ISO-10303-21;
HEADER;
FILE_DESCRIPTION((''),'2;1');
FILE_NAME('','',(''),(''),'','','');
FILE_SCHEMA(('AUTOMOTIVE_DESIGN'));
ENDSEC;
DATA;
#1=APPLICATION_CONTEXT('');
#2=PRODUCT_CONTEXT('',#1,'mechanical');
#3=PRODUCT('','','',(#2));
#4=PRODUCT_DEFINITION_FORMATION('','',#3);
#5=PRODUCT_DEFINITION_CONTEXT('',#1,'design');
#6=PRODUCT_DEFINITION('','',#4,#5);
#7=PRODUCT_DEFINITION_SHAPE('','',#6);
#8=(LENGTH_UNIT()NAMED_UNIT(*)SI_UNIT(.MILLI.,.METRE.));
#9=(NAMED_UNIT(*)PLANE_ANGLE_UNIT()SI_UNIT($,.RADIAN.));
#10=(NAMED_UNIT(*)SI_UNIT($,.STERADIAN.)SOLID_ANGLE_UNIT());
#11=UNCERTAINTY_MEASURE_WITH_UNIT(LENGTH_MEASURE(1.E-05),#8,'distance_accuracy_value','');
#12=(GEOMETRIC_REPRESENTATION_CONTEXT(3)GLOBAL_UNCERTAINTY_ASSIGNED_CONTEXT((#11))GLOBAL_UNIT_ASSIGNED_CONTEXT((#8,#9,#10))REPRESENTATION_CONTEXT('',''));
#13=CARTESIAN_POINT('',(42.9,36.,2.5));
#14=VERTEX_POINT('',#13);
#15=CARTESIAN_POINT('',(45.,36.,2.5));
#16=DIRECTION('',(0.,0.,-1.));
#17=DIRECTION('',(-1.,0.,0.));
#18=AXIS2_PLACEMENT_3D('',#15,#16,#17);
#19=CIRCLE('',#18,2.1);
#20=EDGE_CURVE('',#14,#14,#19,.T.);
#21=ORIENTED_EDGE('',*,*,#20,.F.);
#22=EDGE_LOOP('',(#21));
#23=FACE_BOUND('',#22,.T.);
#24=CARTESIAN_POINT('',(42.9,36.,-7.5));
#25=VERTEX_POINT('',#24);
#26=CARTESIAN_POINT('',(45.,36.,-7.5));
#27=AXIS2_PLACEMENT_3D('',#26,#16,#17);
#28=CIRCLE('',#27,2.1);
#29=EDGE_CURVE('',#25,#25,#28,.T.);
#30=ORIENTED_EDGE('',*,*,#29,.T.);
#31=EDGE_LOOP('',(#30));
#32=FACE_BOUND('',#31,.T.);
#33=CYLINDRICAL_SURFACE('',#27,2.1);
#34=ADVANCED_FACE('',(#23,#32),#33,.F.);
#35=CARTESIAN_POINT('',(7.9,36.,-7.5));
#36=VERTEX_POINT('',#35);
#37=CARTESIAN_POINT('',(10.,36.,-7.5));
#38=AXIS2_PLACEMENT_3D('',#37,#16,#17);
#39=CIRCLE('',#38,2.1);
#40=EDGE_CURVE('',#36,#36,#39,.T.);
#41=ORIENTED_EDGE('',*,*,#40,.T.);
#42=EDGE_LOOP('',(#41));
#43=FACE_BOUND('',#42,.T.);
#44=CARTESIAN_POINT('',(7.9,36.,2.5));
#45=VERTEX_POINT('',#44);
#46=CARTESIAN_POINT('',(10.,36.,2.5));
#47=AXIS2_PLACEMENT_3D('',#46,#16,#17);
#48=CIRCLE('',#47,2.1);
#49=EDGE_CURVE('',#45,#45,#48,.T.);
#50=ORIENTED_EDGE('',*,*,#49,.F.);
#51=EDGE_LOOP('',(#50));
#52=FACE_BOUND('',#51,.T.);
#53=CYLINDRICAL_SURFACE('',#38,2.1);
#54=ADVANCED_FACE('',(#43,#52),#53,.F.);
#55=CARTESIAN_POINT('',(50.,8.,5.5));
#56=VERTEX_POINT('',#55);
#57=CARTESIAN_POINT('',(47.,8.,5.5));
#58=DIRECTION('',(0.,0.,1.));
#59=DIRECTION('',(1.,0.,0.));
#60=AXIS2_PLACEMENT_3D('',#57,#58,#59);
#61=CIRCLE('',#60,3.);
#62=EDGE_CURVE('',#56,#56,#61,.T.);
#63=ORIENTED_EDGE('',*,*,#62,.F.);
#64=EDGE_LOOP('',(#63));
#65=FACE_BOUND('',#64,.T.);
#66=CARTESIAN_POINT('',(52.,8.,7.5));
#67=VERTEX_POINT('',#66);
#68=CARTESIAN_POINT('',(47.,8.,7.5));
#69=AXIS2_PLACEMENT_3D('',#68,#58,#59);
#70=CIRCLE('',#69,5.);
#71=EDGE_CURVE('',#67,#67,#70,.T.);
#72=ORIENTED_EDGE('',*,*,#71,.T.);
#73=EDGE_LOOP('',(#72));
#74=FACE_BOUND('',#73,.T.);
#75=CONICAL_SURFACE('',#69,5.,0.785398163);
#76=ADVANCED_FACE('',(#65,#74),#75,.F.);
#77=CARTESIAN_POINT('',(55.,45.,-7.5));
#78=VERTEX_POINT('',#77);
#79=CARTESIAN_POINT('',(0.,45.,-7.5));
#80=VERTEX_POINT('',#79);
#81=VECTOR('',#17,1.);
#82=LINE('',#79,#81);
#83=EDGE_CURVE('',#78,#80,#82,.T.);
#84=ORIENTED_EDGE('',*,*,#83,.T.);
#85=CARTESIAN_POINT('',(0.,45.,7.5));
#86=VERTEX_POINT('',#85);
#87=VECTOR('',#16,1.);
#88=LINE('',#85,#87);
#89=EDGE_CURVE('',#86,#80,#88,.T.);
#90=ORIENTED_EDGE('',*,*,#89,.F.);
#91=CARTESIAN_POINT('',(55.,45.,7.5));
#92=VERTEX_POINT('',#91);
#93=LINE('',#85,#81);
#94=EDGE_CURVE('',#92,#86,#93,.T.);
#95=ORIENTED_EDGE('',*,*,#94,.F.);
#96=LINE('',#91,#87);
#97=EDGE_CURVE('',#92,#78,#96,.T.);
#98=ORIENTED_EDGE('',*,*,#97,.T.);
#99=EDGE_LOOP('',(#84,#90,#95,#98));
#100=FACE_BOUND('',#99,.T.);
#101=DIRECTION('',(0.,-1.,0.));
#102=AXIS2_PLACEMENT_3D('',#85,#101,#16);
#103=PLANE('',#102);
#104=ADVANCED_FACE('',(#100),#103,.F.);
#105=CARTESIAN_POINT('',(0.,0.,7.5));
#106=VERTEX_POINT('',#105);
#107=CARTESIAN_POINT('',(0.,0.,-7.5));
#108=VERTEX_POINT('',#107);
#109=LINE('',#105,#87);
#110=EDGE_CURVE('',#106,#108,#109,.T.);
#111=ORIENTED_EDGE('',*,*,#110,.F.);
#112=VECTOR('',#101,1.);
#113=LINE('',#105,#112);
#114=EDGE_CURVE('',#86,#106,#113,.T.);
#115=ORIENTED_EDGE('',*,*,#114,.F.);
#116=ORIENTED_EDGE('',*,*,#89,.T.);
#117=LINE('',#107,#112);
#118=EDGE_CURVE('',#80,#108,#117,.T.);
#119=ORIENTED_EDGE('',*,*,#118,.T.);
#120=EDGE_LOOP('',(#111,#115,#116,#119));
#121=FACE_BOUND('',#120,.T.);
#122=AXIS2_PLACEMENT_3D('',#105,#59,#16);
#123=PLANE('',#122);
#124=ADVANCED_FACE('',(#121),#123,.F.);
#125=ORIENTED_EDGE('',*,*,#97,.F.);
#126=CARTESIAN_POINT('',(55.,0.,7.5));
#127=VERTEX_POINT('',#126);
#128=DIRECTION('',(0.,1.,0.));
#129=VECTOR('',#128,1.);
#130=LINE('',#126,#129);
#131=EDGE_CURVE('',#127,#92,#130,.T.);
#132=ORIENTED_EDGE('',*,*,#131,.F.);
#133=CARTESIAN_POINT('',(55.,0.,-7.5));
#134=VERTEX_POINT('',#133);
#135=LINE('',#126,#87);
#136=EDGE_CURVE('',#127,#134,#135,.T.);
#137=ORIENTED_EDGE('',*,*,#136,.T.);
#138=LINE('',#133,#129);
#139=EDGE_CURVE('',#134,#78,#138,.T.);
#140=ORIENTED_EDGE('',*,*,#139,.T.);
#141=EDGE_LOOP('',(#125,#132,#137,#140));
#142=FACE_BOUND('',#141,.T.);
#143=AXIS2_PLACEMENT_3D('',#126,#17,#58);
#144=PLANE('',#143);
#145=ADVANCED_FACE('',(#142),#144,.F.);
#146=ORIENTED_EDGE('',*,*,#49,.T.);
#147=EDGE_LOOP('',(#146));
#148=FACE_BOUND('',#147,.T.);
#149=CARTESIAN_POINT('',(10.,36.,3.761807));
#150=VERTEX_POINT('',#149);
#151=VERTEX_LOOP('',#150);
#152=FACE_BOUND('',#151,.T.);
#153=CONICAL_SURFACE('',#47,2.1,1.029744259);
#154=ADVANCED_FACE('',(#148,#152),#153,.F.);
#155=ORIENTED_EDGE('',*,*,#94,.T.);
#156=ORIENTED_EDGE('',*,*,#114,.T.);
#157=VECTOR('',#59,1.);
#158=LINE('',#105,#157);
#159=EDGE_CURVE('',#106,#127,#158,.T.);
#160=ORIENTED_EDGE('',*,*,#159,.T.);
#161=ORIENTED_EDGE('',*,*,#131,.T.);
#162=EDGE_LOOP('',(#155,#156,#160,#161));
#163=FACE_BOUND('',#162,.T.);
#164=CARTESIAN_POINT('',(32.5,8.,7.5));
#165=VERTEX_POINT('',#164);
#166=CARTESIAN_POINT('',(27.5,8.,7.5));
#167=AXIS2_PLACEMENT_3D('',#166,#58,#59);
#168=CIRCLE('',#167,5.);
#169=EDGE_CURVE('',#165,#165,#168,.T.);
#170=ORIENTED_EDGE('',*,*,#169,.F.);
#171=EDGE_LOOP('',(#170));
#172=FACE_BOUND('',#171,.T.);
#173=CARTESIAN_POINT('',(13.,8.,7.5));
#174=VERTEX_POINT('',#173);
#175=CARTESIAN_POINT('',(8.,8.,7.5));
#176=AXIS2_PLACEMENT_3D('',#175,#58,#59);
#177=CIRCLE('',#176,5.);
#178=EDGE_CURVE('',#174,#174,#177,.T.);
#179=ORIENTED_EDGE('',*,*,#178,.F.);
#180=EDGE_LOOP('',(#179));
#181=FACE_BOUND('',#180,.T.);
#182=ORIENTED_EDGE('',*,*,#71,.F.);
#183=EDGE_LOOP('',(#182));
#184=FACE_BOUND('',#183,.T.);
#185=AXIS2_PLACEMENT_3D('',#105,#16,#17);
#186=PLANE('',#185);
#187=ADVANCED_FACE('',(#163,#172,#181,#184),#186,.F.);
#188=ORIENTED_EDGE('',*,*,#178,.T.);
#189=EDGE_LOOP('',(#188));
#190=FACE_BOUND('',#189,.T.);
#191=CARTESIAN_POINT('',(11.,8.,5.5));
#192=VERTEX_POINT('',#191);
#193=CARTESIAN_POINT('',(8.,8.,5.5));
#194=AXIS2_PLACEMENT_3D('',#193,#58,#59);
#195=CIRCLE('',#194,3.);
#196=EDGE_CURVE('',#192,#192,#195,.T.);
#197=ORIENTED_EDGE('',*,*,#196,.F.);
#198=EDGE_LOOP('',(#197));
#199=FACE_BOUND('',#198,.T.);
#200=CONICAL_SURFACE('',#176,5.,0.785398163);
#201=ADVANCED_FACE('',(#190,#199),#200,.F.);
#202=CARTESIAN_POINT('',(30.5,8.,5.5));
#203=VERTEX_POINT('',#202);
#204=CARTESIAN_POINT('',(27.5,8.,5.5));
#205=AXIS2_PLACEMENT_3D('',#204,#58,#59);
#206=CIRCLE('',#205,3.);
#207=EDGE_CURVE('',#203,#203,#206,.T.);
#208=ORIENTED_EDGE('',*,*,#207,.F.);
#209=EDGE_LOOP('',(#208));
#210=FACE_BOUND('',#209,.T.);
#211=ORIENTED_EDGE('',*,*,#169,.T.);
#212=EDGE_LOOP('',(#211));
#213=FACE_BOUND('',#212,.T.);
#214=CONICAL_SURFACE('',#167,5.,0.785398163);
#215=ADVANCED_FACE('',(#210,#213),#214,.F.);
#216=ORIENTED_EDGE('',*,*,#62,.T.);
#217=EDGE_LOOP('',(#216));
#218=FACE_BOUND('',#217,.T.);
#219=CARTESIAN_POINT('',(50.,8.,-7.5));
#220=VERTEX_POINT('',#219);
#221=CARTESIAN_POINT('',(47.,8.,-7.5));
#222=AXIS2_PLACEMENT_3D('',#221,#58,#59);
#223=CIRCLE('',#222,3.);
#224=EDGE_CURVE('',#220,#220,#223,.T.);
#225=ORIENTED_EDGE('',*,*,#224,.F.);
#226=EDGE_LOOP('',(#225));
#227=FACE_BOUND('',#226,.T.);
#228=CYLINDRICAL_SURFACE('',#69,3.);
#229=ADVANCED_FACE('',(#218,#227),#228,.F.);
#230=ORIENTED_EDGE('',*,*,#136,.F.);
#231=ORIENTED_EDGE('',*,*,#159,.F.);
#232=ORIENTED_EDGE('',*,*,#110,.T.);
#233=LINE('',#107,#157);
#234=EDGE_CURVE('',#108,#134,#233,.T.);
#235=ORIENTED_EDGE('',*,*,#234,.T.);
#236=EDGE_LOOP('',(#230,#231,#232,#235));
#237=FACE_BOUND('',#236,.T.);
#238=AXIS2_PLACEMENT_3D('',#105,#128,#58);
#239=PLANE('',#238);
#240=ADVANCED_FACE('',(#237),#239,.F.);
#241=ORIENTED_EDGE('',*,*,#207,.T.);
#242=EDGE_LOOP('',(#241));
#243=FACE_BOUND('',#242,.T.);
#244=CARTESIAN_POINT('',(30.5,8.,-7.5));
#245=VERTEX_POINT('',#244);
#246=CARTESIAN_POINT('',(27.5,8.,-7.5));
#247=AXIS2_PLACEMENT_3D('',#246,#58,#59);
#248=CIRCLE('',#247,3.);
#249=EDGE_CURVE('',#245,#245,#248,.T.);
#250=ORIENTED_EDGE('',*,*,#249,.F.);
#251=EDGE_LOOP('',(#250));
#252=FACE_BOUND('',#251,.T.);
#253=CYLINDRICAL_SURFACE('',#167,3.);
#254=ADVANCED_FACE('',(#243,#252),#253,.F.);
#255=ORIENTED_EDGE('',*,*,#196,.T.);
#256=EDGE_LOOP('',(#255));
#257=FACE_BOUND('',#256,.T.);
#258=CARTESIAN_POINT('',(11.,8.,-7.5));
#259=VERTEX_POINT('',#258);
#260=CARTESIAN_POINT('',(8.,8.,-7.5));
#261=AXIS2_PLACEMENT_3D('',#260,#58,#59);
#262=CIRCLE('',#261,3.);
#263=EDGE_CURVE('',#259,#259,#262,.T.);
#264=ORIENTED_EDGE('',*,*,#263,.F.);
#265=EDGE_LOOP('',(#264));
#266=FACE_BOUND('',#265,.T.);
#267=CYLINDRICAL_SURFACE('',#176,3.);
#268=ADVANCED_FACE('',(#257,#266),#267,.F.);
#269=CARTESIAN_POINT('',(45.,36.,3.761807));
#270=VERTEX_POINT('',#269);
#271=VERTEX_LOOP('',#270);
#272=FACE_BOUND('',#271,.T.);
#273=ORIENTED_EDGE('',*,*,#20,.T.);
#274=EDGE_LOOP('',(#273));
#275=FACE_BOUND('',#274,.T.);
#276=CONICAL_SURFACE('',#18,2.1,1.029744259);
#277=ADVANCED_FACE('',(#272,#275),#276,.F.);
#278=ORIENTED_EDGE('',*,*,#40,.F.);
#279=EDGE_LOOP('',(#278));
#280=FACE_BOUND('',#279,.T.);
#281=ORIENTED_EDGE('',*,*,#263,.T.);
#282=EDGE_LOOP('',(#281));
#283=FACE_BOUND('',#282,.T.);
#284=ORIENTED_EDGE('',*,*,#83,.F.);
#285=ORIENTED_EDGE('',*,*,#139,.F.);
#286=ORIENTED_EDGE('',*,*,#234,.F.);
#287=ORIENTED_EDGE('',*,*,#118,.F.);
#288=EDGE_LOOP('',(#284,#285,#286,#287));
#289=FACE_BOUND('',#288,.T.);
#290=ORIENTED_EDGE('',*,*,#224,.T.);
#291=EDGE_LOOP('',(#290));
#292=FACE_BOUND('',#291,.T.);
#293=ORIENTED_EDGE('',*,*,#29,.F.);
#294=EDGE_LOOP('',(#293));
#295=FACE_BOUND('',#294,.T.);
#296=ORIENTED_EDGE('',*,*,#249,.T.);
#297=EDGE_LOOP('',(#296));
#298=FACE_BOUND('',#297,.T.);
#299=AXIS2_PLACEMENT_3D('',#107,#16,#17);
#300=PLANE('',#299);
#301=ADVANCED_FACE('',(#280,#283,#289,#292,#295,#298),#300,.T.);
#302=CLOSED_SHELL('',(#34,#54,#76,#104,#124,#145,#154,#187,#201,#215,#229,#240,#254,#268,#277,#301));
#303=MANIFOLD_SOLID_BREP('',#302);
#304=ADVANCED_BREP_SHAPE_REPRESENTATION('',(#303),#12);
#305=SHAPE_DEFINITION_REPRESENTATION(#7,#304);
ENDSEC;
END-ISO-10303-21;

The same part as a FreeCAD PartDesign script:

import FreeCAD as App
import Part
import Sketcher

V = App.Vector
Q = App.Units.Quantity


def add_polygon(sketch, points):
    """Adds a closed chain of lines whose ends are joined by coincident constraints."""
    first, n = sketch.GeometryCount, len(points)
    for a, b in zip(points, points[1:] + points[:1]):
        sketch.addGeometry(Part.LineSegment(App.Vector(*a, 0), App.Vector(*b, 0)), False)
    for i in range(n):
        sketch.addConstraint(Sketcher.Constraint("Coincident", first + i, 2, first + (i + 1) % n, 1))

doc = App.newDocument("Part")
body = doc.addObject("PartDesign::Body", "Body")

# Sketch on XY plane
sketch1 = body.newObject("Sketcher::SketchObject", "Sketch")
sketch1.AttachmentSupport = (doc.getObject("XY_Plane"), [""])
sketch1.MapMode = "FlatFace"
add_polygon(sketch1, [(0, 45), (0, 0), (55, 0), (55, 45)])  # lines 0-3
sketch1.addConstraint(Sketcher.Constraint("Vertical", 0))
sketch1.addConstraint(Sketcher.Constraint("Horizontal", 1))
sketch1.addConstraint(Sketcher.Constraint("Vertical", 2))
sketch1.addConstraint(Sketcher.Constraint("Horizontal", 3))
sketch1.addConstraint(Sketcher.Constraint("Coincident", 0, 2, -1, 1))
sketch1.addConstraint(Sketcher.Constraint("DistanceX", 1, 1, 1, 2, Q("55 mm")))
sketch1.addConstraint(Sketcher.Constraint("DistanceY", 0, 2, 0, 1, Q("45 mm")))
pad1 = body.newObject("PartDesign::Pad", "Pad")
pad1.Profile = sketch1
pad1.Length = 15
pad1.Midplane = True

# Sketch on XY plane
sketch2 = body.newObject("Sketcher::SketchObject", "Sketch001")
sketch2.AttachmentSupport = (doc.getObject("XY_Plane"), [""])
sketch2.MapMode = "FlatFace"
sketch2.AttachmentOffset = App.Placement(V(0, 0, 7.5), App.Rotation())
sketch2.addGeometry(Part.Circle(V(8, 8, 0), V(0, 0, 1), 3), False)
sketch2.addGeometry(Part.Circle(V(27.5, 8, 0), V(0, 0, 1), 3), False)
sketch2.addGeometry(Part.Circle(V(47, 8, 0), V(0, 0, 1), 3), False)
sketch2.addConstraint(Sketcher.Constraint("Equal", 0, 1))
sketch2.addConstraint(Sketcher.Constraint("Equal", 1, 2))
sketch2.addConstraint(Sketcher.Constraint("Horizontal", 0, 3, 1, 3))
sketch2.addConstraint(Sketcher.Constraint("Horizontal", 1, 3, 2, 3))
sketch2.addConstraint(Sketcher.Constraint("Diameter", 0, Q("6 mm")))
sketch2.addConstraint(Sketcher.Constraint("DistanceX", -1, 1, 0, 3, Q("8 mm")))
sketch2.addConstraint(Sketcher.Constraint("DistanceY", -1, 1, 0, 3, Q("8 mm")))
sketch2.addConstraint(Sketcher.Constraint("DistanceX", -1, 1, 2, 3, Q("47 mm")))
sketch2.addConstraint(Sketcher.Constraint("DistanceX", -1, 1, 1, 3, Q("27.5 mm")))
doc.recompute()
hole = body.newObject("PartDesign::Hole", "Hole")
hole.Profile = sketch2
hole.ThreadType = "None"
hole.Diameter = 6
hole.DepthType = "ThroughAll"
hole.HoleCutType = "Countersink"
hole.HoleCutDiameter = 10
hole.HoleCutCountersinkAngle = 90

# Sketch on XY plane
sketch3 = body.newObject("Sketcher::SketchObject", "Sketch002")
sketch3.AttachmentSupport = (doc.getObject("XY_Plane"), [""])
sketch3.MapMode = "FlatFace"
sketch3.AttachmentOffset = App.Placement(V(0, 0, -7.5), App.Rotation())
sketch3.addGeometry(Part.Circle(V(45, 36, 0), V(0, 0, 1), 2.1), False)
sketch3.addGeometry(Part.Circle(V(10, 36, 0), V(0, 0, 1), 2.1), False)
sketch3.addConstraint(Sketcher.Constraint("Equal", 0, 1))
sketch3.addConstraint(Sketcher.Constraint("Horizontal", 0, 3, 1, 3))
sketch3.addConstraint(Sketcher.Constraint("Diameter", 0, Q("4.2 mm")))
sketch3.addConstraint(Sketcher.Constraint("DistanceX", -1, 1, 0, 3, Q("45 mm")))
sketch3.addConstraint(Sketcher.Constraint("DistanceY", -1, 1, 0, 3, Q("36 mm")))
sketch3.addConstraint(Sketcher.Constraint("DistanceX", -1, 1, 1, 3, Q("10 mm")))
doc.recompute()
hole2 = body.newObject("PartDesign::Hole", "Hole001")
hole2.Profile = sketch3
hole2.ThreadType = "None"
hole2.Diameter = 4.2
hole2.DepthType = "Dimension"
hole2.Depth = 10
hole2.DrillPoint = "Angled"
hole2.DrillPointAngle = 118
hole2.Reversed = True

doc.recompute()
